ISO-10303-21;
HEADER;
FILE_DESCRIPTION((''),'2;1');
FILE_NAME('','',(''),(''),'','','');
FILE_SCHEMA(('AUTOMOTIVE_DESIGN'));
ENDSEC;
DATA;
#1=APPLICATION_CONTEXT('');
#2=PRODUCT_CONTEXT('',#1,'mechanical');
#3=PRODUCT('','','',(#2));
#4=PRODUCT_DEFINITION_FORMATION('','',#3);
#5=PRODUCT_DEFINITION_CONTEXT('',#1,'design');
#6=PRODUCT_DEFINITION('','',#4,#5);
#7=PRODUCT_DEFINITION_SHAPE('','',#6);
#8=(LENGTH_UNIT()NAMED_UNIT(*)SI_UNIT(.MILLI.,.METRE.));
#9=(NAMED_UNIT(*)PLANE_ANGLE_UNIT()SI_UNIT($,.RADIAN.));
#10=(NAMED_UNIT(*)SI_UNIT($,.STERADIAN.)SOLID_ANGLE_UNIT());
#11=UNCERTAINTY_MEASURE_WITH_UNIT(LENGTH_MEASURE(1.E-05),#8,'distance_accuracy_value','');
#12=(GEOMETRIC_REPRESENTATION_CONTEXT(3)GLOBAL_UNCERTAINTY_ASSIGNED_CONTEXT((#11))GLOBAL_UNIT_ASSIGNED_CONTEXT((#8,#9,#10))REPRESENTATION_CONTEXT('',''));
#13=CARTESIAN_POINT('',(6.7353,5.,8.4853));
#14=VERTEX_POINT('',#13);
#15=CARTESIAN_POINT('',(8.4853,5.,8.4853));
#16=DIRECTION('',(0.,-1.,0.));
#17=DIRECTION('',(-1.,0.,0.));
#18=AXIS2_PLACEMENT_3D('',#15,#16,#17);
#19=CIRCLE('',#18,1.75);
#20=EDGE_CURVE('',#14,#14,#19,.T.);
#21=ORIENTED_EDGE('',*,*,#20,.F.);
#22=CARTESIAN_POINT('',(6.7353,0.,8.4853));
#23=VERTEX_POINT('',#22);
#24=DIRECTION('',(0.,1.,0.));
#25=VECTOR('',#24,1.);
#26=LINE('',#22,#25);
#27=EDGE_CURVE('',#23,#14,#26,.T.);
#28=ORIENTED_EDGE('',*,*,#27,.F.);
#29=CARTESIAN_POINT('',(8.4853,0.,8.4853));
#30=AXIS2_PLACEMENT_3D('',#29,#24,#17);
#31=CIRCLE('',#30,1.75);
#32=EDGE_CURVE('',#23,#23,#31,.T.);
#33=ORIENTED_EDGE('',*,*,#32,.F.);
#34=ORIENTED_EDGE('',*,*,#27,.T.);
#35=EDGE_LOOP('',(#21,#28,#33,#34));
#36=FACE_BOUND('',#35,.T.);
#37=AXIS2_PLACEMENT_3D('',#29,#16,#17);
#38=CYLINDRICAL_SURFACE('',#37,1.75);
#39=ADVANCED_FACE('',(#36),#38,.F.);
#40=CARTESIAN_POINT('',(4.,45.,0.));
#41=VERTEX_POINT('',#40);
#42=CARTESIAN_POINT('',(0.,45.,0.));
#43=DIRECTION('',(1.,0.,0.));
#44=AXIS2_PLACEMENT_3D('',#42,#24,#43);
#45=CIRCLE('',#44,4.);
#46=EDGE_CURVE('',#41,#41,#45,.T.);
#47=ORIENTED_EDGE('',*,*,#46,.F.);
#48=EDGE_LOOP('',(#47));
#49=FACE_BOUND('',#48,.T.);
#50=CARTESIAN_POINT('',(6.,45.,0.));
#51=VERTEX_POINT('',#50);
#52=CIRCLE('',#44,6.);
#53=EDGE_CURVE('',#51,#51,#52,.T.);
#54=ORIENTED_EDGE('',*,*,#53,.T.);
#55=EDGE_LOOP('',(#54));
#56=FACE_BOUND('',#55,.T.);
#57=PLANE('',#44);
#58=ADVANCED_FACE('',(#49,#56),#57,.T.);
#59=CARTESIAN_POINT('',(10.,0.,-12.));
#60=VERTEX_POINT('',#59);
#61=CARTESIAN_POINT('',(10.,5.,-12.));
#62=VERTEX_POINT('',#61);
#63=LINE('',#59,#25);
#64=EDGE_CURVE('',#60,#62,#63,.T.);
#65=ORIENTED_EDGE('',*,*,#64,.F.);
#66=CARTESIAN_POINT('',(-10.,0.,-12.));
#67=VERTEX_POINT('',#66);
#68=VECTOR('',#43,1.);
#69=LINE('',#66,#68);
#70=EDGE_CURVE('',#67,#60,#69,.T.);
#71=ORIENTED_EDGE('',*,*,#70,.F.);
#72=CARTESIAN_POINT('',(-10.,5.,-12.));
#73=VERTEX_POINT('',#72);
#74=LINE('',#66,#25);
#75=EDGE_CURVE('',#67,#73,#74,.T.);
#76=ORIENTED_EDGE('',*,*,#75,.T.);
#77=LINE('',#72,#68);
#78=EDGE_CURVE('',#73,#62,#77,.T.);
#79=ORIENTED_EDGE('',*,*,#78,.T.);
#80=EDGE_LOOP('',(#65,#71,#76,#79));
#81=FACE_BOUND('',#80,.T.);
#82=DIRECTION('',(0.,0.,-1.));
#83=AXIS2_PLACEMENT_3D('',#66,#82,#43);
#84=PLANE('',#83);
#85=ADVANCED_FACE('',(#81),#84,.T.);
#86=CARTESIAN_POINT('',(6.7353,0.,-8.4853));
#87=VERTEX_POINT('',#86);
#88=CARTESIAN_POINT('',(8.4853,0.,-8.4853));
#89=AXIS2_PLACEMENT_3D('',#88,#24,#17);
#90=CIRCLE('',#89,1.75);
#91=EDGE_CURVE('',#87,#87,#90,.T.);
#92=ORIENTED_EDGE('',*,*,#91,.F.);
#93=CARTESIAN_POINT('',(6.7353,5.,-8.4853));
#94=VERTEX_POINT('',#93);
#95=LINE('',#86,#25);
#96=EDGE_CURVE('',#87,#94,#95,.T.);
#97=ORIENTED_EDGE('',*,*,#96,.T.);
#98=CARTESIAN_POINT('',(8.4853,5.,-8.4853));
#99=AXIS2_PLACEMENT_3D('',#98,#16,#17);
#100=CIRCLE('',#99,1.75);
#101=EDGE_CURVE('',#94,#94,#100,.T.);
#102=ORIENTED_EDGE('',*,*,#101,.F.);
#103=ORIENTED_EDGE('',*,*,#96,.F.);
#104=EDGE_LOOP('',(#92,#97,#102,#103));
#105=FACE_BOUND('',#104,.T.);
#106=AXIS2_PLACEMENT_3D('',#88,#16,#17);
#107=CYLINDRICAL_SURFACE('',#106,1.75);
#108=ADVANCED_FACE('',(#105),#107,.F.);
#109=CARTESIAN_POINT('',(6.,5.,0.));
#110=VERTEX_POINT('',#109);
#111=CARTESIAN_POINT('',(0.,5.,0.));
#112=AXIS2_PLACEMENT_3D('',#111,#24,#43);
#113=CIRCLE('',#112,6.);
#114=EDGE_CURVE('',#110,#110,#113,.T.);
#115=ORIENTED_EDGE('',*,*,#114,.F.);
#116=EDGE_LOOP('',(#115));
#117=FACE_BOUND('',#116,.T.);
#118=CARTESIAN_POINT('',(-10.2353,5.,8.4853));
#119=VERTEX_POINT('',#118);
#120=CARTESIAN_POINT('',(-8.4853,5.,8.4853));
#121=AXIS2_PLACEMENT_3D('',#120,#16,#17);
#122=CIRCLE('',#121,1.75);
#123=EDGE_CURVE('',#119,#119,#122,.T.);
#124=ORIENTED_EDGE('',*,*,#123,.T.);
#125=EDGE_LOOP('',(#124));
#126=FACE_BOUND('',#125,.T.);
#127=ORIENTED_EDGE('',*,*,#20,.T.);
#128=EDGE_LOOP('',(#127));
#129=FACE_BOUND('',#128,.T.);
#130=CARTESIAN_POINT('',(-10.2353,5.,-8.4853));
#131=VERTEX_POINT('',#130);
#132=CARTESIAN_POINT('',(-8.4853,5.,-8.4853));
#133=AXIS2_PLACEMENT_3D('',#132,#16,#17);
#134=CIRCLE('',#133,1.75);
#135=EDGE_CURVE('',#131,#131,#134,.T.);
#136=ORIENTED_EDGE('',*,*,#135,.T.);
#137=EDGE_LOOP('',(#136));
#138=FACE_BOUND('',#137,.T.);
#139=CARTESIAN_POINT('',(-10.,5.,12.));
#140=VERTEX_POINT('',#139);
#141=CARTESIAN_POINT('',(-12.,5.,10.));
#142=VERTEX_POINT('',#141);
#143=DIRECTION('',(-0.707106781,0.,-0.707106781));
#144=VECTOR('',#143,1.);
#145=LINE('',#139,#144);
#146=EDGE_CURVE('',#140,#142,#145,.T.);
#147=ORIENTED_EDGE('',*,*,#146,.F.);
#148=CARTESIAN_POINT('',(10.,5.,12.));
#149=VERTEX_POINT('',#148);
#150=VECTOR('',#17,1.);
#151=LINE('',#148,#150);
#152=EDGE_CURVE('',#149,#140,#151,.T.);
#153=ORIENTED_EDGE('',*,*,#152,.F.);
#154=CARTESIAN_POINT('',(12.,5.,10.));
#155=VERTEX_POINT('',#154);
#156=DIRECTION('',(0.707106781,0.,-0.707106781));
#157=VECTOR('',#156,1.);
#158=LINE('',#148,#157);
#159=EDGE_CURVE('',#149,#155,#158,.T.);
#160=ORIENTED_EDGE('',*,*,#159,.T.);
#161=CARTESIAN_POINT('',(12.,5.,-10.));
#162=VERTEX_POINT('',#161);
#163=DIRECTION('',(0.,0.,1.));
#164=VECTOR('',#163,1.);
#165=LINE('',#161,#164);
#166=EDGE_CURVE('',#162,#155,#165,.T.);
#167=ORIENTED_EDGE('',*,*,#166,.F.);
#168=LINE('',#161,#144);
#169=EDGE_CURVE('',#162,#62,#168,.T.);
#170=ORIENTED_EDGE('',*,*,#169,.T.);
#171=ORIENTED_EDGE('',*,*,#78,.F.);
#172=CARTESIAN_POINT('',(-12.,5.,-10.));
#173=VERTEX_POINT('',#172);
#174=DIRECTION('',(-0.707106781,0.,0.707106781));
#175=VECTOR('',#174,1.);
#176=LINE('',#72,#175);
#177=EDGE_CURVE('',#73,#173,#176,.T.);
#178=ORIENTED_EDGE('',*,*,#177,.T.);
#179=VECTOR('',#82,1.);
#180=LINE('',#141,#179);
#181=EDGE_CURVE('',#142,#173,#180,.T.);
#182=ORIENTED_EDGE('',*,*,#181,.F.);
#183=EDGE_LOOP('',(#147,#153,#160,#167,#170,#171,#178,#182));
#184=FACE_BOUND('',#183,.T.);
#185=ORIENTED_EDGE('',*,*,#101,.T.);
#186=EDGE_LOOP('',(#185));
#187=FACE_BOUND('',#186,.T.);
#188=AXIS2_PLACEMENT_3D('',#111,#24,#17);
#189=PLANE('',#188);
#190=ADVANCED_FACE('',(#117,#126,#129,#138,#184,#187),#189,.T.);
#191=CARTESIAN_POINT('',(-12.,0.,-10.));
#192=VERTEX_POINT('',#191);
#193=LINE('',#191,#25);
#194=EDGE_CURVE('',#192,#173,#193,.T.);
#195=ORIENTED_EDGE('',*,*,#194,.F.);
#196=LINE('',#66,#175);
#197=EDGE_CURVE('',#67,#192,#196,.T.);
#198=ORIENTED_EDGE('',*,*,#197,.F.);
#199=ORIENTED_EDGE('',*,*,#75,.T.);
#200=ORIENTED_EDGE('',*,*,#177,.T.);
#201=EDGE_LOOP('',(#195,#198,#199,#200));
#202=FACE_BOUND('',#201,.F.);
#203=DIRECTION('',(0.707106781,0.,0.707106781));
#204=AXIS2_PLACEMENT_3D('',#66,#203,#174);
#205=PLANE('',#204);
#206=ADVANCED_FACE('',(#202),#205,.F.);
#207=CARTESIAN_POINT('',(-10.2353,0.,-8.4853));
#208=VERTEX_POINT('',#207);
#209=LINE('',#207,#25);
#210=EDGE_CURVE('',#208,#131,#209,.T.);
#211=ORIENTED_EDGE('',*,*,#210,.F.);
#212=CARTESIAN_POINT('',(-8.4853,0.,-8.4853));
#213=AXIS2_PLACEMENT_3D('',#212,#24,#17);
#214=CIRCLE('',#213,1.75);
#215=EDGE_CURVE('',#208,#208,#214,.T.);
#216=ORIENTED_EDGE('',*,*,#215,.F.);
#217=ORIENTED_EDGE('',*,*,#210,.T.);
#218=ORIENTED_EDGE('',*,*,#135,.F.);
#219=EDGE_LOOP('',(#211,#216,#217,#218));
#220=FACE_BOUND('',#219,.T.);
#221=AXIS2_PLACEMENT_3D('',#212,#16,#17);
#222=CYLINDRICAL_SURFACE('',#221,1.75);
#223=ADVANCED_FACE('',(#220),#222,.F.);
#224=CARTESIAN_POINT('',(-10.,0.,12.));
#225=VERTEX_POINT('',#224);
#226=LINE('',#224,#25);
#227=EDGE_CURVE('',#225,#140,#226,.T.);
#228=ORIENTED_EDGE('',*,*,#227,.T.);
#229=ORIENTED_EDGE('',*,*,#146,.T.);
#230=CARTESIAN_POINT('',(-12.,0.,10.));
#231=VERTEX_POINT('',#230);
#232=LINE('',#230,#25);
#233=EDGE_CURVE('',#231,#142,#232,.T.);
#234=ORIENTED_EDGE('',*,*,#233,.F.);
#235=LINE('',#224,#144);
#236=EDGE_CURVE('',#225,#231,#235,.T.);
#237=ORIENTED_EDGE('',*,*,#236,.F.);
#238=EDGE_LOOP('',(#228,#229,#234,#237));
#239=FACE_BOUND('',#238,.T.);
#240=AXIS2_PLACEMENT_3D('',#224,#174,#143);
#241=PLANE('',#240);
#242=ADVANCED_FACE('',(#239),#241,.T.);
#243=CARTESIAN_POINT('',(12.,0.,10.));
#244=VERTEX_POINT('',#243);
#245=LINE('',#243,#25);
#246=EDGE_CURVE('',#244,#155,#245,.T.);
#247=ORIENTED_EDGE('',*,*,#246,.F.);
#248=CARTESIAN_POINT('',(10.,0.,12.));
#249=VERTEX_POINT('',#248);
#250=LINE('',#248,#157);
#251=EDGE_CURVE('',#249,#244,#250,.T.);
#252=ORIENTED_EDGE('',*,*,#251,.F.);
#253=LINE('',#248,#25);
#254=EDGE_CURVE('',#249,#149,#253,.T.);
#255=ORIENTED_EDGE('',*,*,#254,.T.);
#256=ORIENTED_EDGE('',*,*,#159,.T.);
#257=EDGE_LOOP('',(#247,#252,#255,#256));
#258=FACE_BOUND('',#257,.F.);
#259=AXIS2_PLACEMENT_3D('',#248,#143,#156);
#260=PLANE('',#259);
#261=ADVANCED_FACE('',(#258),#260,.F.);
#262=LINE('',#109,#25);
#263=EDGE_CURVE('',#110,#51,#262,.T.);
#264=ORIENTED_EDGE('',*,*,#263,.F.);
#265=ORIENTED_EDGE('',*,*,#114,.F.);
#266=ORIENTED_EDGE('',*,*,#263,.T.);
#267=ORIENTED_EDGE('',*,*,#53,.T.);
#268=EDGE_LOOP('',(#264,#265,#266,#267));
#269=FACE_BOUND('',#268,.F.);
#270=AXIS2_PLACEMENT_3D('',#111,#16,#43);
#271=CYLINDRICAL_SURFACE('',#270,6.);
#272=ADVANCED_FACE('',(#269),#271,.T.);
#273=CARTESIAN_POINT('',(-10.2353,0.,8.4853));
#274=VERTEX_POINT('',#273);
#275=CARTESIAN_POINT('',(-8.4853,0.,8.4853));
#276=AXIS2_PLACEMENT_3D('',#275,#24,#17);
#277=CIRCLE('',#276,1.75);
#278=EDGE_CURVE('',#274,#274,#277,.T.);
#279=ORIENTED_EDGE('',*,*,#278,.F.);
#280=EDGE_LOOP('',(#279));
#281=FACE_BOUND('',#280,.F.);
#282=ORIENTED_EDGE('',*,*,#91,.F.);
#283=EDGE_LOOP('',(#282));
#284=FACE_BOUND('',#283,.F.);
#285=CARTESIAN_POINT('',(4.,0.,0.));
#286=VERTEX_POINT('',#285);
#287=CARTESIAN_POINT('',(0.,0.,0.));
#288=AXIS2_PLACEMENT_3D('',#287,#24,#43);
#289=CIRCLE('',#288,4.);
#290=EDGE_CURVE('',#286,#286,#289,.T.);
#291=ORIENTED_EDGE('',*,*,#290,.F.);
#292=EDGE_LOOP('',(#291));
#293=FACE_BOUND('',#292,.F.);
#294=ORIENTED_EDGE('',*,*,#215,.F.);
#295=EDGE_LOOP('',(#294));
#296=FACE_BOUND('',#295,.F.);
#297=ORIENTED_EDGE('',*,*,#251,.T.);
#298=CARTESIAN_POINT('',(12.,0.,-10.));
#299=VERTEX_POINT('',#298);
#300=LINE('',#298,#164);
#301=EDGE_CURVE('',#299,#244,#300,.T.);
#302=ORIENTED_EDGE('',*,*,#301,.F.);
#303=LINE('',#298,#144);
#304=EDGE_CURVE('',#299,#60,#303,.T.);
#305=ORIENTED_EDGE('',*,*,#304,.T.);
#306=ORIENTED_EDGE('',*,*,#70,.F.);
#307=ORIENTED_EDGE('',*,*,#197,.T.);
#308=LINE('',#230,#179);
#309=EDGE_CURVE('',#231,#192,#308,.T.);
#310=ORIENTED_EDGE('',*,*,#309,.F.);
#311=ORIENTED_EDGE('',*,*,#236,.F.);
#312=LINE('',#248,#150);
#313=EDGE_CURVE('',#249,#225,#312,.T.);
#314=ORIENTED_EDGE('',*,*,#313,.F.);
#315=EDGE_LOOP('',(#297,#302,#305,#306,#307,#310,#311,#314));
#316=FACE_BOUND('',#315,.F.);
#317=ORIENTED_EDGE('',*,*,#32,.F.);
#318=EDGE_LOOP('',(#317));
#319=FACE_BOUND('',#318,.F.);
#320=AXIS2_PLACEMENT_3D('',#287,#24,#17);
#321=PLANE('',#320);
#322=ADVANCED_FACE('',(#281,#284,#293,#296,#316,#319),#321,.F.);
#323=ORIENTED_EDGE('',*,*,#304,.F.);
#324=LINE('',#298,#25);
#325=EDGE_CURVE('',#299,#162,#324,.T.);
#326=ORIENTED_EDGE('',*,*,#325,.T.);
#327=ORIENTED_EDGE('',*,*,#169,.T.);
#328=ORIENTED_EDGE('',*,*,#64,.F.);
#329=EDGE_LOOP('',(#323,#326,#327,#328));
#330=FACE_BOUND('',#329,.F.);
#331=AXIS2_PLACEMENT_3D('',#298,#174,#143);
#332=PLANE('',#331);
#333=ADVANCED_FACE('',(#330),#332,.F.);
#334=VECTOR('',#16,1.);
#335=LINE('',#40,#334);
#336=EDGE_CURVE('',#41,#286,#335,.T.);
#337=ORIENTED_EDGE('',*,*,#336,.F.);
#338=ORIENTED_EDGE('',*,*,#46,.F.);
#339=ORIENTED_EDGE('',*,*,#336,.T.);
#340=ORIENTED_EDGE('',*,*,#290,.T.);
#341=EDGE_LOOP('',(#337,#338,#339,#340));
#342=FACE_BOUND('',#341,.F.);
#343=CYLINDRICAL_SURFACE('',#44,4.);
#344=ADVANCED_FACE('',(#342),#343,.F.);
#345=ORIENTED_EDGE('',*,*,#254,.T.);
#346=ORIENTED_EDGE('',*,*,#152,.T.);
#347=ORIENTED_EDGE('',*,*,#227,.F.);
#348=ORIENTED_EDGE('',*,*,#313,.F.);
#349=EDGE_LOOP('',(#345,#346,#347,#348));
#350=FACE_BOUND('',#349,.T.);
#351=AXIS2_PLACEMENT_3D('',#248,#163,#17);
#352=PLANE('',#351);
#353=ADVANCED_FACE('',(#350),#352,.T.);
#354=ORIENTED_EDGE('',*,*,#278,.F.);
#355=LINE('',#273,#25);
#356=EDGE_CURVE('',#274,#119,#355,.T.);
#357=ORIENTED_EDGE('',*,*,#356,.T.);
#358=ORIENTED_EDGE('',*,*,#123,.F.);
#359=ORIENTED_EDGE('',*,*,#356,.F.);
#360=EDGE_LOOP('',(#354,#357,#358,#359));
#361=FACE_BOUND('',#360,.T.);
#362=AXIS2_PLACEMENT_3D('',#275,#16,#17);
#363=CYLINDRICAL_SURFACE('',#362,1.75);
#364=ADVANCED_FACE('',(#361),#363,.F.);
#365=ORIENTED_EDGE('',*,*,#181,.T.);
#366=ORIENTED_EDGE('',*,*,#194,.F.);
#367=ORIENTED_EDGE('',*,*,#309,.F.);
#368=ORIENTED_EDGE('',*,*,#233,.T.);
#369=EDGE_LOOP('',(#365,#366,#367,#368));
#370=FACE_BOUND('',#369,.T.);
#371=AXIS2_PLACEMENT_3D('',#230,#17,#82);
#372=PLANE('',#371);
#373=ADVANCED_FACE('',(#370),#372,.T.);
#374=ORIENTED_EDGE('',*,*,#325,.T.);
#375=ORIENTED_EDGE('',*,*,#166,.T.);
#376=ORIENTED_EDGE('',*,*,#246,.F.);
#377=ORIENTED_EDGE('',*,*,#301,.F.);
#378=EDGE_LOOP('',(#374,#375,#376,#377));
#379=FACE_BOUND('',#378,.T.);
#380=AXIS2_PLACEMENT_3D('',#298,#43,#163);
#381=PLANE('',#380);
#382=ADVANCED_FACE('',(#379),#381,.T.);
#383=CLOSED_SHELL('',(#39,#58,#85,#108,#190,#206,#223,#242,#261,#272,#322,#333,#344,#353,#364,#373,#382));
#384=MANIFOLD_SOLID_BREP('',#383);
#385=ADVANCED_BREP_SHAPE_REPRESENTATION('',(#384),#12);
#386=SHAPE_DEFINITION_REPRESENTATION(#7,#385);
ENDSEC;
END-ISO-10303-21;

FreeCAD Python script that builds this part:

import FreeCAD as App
import Part
import Sketcher

V = App.Vector
Q = App.Units.Quantity


def add_polygon(sketch, points):
    """Adds a closed chain of lines whose ends are joined by coincident constraints."""
    first, n = sketch.GeometryCount, len(points)
    for a, b in zip(points, points[1:] + points[:1]):
        sketch.addGeometry(Part.LineSegment(App.Vector(*a, 0), App.Vector(*b, 0)), False)
    for i in range(n):
        sketch.addConstraint(Sketcher.Constraint("Coincident", first + i, 2, first + (i + 1) % n, 1))

doc = App.newDocument("Part")
body = doc.addObject("PartDesign::Body", "Body")

# Sketch on XZ plane
sketch1 = body.newObject("Sketcher::SketchObject", "Sketch")
sketch1.AttachmentSupport = (doc.getObject("XZ_Plane"), [""])
sketch1.MapMode = "FlatFace"
add_polygon(sketch1, [(10, -12), (-10, -12), (-12, -10), (-12, 10), (-10, 12), (10, 12), (12, 10), (12, -10)])  # lines 0-7
sketch1.addGeometry(Part.Circle(V(-8.5, -8.5, 0), V(0, 0, 1), 1.8), False)  # 8
sketch1.addGeometry(Part.Circle(V(-8.5, 8.5, 0), V(0, 0, 1), 1.8), False)  # 9
sketch1.addGeometry(Part.Circle(V(8.5, 8.5, 0), V(0, 0, 1), 1.8), False)  # 10
sketch1.addGeometry(Part.Circle(V(8.5, -8.5, 0), V(0, 0, 1), 1.8), False)  # 11
sketch1.addConstraint(Sketcher.Constraint("Horizontal", 0))
sketch1.addConstraint(Sketcher.Constraint("Vertical", 2))
sketch1.addConstraint(Sketcher.Constraint("Horizontal", 4))
sketch1.addConstraint(Sketcher.Constraint("Vertical", 6))
sketch1.addConstraint(Sketcher.Constraint("Equal", 8, 9))
sketch1.addConstraint(Sketcher.Constraint("Equal", 9, 10))
sketch1.addConstraint(Sketcher.Constraint("Equal", 10, 11))
sketch1.addConstraint(Sketcher.Constraint("Symmetric", 8, 3, 10, 3, -1, 1))
sketch1.addConstraint(Sketcher.Constraint("Symmetric", 9, 3, 11, 3, -1, 1))
sketch1.addConstraint(Sketcher.Constraint("Symmetric", 0, 2, 4, 2, -1, 1))
sketch1.addConstraint(Sketcher.Constraint("Symmetric", 1, 2, 5, 2, -1, 1))
sketch1.addConstraint(Sketcher.Constraint("Symmetric", 9, 3, 10, 3, -2))
sketch1.addConstraint(Sketcher.Constraint("Perpendicular", 1, 3))
sketch1.addConstraint(Sketcher.Constraint("Perpendicular", 5, 7))
sketch1.addConstraint(Sketcher.Constraint("Horizontal", 2, 2, 5, 2))
sketch1.addConstraint(Sketcher.Constraint("Horizontal", 1, 2, 6, 2))
sketch1.addConstraint(Sketcher.Constraint("Vertical", 0, 2, 3, 2))
sketch1.addConstraint(Sketcher.Constraint("Equal", 4, 2))
sketch1.addConstraint(Sketcher.Constraint("Diameter", 8, Q("3.5 mm")))
sketch1.addConstraint(Sketcher.Constraint("DistanceY", 0, 2, -1, 1, Q("12 mm")))
sketch1.addConstraint(Sketcher.Constraint("DistanceX", 1, 2, 0, 2, Q("2 mm")))
sketch1.addConstraint(Sketcher.Constraint("DistanceX", 8, 3, -1, 1, Q("8.4853 mm")))
sketch1.addConstraint(Sketcher.Constraint("DistanceY", 8, 3, -1, 1, Q("8.4853 mm")))
pad1 = body.newObject("PartDesign::Pad", "Pad")
pad1.Profile = sketch1
pad1.Length = 5
pad1.Reversed = True

# Sketch on XZ plane
sketch2 = body.newObject("Sketcher::SketchObject", "Sketch001")
sketch2.AttachmentSupport = (doc.getObject("XZ_Plane"), [""])
sketch2.MapMode = "FlatFace"
sketch2.AttachmentOffset = App.Placement(V(0, 0, -5), App.Rotation())
sketch2.addGeometry(Part.Circle(V(0, 0, 0), V(0, 0, 1), 6), False)
sketch2.addConstraint(Sketcher.Constraint("Coincident", 0, 3, -1, 1))
sketch2.addConstraint(Sketcher.Constraint("Diameter", 0, Q("12 mm")))
pad2 = body.newObject("PartDesign::Pad", "Pad001")
pad2.Profile = sketch2
pad2.Length = 40
pad2.Reversed = True

# Sketch on XZ plane
sketch3 = body.newObject("Sketcher::SketchObject", "Sketch002")
sketch3.AttachmentSupport = (doc.getObject("XZ_Plane"), [""])
sketch3.MapMode = "FlatFace"
sketch3.AttachmentOffset = App.Placement(V(0, 0, -45), App.Rotation())
sketch3.addGeometry(Part.Circle(V(0, 0, 0), V(0, 0, 1), 4), False)
sketch3.addConstraint(Sketcher.Constraint("Coincident", 0, 3, -1, 1))
sketch3.addConstraint(Sketcher.Constraint("Diameter", 0, Q("8 mm")))
pocket1 = body.newObject("PartDesign::Pocket", "Pocket")
pocket1.Profile = sketch3
pocket1.Type = "ThroughAll"
pocket1.Reversed = True

doc.recompute()
